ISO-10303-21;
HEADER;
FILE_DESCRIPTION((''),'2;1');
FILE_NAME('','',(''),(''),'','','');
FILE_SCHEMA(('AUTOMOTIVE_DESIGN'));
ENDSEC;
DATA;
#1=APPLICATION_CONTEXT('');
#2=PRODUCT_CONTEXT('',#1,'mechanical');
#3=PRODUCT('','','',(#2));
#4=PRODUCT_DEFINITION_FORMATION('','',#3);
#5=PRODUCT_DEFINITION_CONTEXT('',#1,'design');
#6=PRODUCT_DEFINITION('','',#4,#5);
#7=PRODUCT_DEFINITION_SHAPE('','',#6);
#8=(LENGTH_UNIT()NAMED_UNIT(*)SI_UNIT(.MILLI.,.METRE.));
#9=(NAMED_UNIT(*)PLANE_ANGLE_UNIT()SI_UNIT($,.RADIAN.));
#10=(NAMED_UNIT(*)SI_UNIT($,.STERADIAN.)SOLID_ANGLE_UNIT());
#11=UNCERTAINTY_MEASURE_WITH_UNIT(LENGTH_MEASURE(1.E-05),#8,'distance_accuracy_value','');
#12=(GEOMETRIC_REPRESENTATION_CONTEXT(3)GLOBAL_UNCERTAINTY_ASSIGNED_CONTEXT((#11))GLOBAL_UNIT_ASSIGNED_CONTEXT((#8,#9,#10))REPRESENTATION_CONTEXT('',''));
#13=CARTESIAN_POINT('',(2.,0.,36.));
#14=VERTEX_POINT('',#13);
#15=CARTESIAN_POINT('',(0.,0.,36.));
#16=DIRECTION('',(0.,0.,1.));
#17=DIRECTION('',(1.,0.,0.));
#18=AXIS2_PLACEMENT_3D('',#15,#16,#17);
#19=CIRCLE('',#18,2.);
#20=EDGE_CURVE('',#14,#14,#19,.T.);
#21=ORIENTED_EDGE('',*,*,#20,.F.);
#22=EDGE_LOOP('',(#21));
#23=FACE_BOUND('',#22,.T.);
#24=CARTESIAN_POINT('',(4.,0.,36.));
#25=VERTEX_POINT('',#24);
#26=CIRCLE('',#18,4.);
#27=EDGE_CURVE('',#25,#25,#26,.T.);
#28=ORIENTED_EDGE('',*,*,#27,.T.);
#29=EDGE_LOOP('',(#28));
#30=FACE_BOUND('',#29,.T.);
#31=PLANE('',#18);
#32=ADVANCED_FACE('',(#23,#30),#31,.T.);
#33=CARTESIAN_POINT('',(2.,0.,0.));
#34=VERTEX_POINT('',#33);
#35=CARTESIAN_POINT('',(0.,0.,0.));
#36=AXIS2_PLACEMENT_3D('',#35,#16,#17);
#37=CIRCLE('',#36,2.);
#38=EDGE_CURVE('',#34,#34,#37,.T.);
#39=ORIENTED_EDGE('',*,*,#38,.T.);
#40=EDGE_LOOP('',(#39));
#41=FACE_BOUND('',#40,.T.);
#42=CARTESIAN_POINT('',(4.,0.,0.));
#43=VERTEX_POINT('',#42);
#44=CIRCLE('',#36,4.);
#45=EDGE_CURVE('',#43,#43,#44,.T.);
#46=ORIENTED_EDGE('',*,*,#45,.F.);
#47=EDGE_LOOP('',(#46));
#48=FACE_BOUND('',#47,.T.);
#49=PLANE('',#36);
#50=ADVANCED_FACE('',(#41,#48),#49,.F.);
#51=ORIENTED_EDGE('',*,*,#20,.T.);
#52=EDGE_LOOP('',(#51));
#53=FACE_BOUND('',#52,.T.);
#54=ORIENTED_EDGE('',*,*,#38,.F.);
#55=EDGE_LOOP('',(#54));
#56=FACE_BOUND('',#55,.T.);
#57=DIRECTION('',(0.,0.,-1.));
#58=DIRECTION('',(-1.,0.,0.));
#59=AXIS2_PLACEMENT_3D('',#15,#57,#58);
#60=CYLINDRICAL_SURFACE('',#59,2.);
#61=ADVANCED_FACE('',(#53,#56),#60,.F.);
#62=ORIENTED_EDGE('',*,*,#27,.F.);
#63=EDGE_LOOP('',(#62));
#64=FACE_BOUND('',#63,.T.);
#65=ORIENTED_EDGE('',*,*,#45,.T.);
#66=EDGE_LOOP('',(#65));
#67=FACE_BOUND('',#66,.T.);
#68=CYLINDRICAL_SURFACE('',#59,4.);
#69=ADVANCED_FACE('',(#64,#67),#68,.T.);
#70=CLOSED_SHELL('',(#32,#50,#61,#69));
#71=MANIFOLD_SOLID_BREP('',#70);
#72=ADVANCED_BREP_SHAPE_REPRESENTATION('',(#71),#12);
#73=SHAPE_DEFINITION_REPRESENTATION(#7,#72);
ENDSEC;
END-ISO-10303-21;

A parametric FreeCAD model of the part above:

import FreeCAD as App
import Part
import Sketcher
Q = App.Units.Quantity

doc = App.newDocument("Part")
params = doc.addObject("Spreadsheet::Sheet", "Params")
for row, (alias, value) in enumerate([
    ("sketch1_diameter", "8 mm"),
    ("sketch1_diameter2", "4 mm"),
    ("pad1_length", "36 mm"),
], start=1):
    params.set(f"A{row}", alias)
    params.set(f"B{row}", "=" + value)
    params.setAlias(f"B{row}", alias)

body = doc.addObject("PartDesign::Body", "Body")

sketch1 = doc.addObject("Sketcher::SketchObject", "Sketch")
body.addObject(sketch1)
sketch1.AttachmentSupport = (doc.XY_Plane, [""])
sketch1.MapMode = "FlatFace"
sketch1.addGeometry(Part.Circle(App.Vector(0, 0, 0), App.Vector(0, 0, 1), 4), False)
sketch1.addGeometry(Part.Circle(App.Vector(0, 0, 0), App.Vector(0, 0, 1), 2), False)
sketch1.addConstraint(Sketcher.Constraint("Coincident", 0, 3, -1, 1))
sketch1.addConstraint(Sketcher.Constraint("Coincident", 1, 3, -1, 1))
sketch1.addConstraint(Sketcher.Constraint("Diameter", 0, Q("8 mm")))
sketch1.addConstraint(Sketcher.Constraint("Diameter", 1, Q("4 mm")))
sketch1.setExpression("Constraints[2]", "Params.sketch1_diameter")
sketch1.setExpression("Constraints[3]", "Params.sketch1_diameter2")
pad1 = doc.addObject("PartDesign::Pad", "Pad")
body.addObject(pad1)
pad1.Profile = sketch1
pad1.setExpression("Length", "Params.pad1_length")

doc.recompute()
